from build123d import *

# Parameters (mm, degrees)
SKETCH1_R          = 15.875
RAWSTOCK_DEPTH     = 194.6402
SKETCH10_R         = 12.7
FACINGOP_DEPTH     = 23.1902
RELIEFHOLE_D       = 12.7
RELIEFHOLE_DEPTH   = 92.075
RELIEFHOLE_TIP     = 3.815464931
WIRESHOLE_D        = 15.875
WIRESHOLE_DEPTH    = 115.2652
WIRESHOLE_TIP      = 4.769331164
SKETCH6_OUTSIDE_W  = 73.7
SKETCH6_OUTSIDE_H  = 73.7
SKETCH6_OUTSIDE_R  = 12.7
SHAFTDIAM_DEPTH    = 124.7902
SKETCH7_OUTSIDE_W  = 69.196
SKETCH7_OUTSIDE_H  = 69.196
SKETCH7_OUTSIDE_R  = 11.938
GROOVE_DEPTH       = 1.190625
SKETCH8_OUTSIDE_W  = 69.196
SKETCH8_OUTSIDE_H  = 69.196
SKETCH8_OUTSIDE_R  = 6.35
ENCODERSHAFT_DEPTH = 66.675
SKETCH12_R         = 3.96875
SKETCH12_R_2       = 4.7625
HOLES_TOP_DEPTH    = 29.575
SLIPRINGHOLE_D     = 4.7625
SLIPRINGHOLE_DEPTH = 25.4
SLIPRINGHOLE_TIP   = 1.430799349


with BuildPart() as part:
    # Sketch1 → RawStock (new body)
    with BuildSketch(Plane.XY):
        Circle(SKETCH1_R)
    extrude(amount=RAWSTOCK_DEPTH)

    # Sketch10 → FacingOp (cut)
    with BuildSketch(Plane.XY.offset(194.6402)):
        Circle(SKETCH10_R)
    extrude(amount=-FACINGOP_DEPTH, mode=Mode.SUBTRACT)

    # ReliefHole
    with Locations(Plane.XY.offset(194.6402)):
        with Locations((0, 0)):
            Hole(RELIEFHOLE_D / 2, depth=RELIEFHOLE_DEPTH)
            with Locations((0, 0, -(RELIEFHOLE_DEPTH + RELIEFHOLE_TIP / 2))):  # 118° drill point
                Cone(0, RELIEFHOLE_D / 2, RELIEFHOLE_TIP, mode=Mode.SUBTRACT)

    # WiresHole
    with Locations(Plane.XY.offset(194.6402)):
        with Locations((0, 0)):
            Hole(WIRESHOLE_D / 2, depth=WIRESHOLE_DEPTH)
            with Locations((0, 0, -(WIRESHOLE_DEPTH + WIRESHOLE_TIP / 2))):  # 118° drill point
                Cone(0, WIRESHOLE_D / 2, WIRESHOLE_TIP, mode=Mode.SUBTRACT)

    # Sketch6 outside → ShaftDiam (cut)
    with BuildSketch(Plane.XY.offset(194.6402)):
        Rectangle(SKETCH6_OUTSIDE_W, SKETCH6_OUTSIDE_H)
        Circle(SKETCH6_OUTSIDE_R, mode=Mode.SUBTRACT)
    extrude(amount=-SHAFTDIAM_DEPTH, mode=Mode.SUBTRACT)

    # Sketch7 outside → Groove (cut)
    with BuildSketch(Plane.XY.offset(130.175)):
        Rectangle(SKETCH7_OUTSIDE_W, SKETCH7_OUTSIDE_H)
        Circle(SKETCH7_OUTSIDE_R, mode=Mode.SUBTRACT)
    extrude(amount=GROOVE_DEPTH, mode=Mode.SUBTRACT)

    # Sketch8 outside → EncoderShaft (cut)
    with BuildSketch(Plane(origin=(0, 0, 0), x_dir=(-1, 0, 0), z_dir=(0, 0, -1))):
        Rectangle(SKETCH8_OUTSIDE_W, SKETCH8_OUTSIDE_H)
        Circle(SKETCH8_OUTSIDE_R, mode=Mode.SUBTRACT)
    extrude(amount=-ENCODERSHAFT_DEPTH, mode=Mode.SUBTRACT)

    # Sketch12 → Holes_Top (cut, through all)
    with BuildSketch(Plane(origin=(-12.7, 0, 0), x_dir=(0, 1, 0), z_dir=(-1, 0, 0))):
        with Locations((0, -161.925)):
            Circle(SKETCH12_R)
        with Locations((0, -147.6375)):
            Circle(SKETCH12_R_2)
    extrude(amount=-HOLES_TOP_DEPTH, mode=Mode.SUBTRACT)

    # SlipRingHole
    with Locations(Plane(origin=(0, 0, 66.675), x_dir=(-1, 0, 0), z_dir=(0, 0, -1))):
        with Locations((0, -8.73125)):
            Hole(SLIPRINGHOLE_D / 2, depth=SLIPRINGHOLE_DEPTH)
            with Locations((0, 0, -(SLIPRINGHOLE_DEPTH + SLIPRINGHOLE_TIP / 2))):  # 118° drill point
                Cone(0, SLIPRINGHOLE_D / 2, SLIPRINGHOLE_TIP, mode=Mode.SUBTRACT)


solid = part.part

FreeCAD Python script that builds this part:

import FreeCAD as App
import Part
import Sketcher
Q = App.Units.Quantity


def add_polygon(sketch, points):
    """Adds a closed chain of lines whose ends are joined by coincident constraints."""
    first, n = sketch.GeometryCount, len(points)
    for a, b in zip(points, points[1:] + points[:1]):
        sketch.addGeometry(Part.LineSegment(App.Vector(*a, 0), App.Vector(*b, 0)), False)
    for i in range(n):
        sketch.addConstraint(Sketcher.Constraint("Coincident", first + i, 2, first + (i + 1) % n, 1))

doc = App.newDocument("Part")
body = doc.addObject("PartDesign::Body", "Body")

# Sketch on XY plane
sketch1 = body.newObject("Sketcher::SketchObject", "Sketch")
sketch1.AttachmentSupport = (doc.getObject("XY_Plane"), [""])
sketch1.MapMode = "FlatFace"
sketch1.addGeometry(Part.Circle(App.Vector(0, 0, 0), App.Vector(0, 0, 1), 16), False)
sketch1.addConstraint(Sketcher.Constraint("Coincident", 0, 3, -1, 1))
sketch1.addConstraint(Sketcher.Constraint("Diameter", 0, Q("1.25 in")))
pad1 = body.newObject("PartDesign::Pad", "Pad")
pad1.Profile = sketch1
pad1.Length = Q("7.663 in")

# Sketch on XY plane
sketch2 = body.newObject("Sketcher::SketchObject", "Sketch001")
sketch2.AttachmentSupport = (doc.getObject("XY_Plane"), [""])
sketch2.MapMode = "FlatFace"
sketch2.AttachmentOffset = App.Placement(App.Vector(0, 0, 7.663 * 25.4), App.Rotation())
sketch2.addGeometry(Part.Circle(App.Vector(0, 0, 0), App.Vector(0, 0, 1), 13), False)
sketch2.addConstraint(Sketcher.Constraint("Coincident", 0, 3, -1, 1))
sketch2.addConstraint(Sketcher.Constraint("Diameter", 0, Q("1 in")))
pocket1 = body.newObject("PartDesign::Pocket", "Pocket")
pocket1.Profile = sketch2
pocket1.Length = Q("0.913 in")

# Sketch on XY plane
sketch3 = body.newObject("Sketcher::SketchObject", "Sketch002")
sketch3.AttachmentSupport = (doc.getObject("XY_Plane"), [""])
sketch3.MapMode = "FlatFace"
sketch3.AttachmentOffset = App.Placement(App.Vector(0, 0, 7.663 * 25.4), App.Rotation())
sketch3.addGeometry(Part.Circle(App.Vector(0, 0, 0), App.Vector(0, 0, 1), 6), False)
sketch3.addConstraint(Sketcher.Constraint("Coincident", 0, 3, -1, 1))
sketch3.addConstraint(Sketcher.Constraint("Diameter", 0, Q("0.5 in")))
doc.recompute()
hole = body.newObject("PartDesign::Hole", "Hole")
hole.Profile = sketch3
hole.ThreadType = "None"
hole.Diameter = Q("0.5 in")
hole.DepthType = "Dimension"
hole.Depth = Q("3.625 in")
hole.DrillPoint = "Angled"
hole.DrillPointAngle = 118

# Sketch on XY plane
sketch4 = body.newObject("Sketcher::SketchObject", "Sketch003")
sketch4.AttachmentSupport = (doc.getObject("XY_Plane"), [""])
sketch4.MapMode = "FlatFace"
sketch4.AttachmentOffset = App.Placement(App.Vector(0, 0, 7.663 * 25.4), App.Rotation())
sketch4.addGeometry(Part.Circle(App.Vector(0, 0, 0), App.Vector(0, 0, 1), 8), False)
sketch4.addConstraint(Sketcher.Constraint("Coincident", 0, 3, -1, 1))
sketch4.addConstraint(Sketcher.Constraint("Diameter", 0, Q("0.625 in")))
doc.recompute()
hole2 = body.newObject("PartDesign::Hole", "Hole001")
hole2.Profile = sketch4
hole2.ThreadType = "None"
hole2.Diameter = Q("0.625 in")
hole2.DepthType = "Dimension"
hole2.Depth = Q("4.538 in")
hole2.DrillPoint = "Angled"
hole2.DrillPointAngle = 118

# Sketch on XY plane
sketch5 = body.newObject("Sketcher::SketchObject", "Sketch004")
sketch5.AttachmentSupport = (doc.getObject("XY_Plane"), [""])
sketch5.MapMode = "FlatFace"
sketch5.AttachmentOffset = App.Placement(App.Vector(0, 0, 7.663 * 25.4), App.Rotation())
add_polygon(sketch5, [(-37, 37), (-37, -37), (37, -37), (37, 37)])  # lines 0-3
sketch5.addGeometry(Part.Circle(App.Vector(0, 0, 0), App.Vector(0, 0, 1), 13), False)  # 4
sketch5.addConstraint(Sketcher.Constraint("Vertical", 0))
sketch5.addConstraint(Sketcher.Constraint("Horizontal", 1))
sketch5.addConstraint(Sketcher.Constraint("Vertical", 2))
sketch5.addConstraint(Sketcher.Constraint("Horizontal", 3))
sketch5.addConstraint(Sketcher.Constraint("Coincident", 4, 3, -1, 1))
sketch5.addConstraint(Sketcher.Constraint("Symmetric", 0, 2, 2, 2, -1, 1))
sketch5.addConstraint(Sketcher.Constraint("Equal", 3, 0))
sketch5.addConstraint(Sketcher.Constraint("Diameter", 4, Q("1 in")))
sketch5.addConstraint(Sketcher.Constraint("DistanceX", 1, 1, 1, 2, Q("73.7 mm")))
pocket2 = body.newObject("PartDesign::Pocket", "Pocket001")
pocket2.Profile = sketch5
pocket2.Length = Q("4.913 in")

# Sketch on XY plane
sketch6 = body.newObject("Sketcher::SketchObject", "Sketch005")
sketch6.AttachmentSupport = (doc.getObject("XY_Plane"), [""])
sketch6.MapMode = "FlatFace"
sketch6.AttachmentOffset = App.Placement(App.Vector(0, 0, 5.125 * 25.4), App.Rotation())
add_polygon(sketch6, [(-35, 35), (-35, -35), (35, -35), (35, 35)])  # lines 0-3
sketch6.addGeometry(Part.Circle(App.Vector(0, 0, 0), App.Vector(0, 0, 1), 12), False)  # 4
sketch6.addConstraint(Sketcher.Constraint("Vertical", 0))
sketch6.addConstraint(Sketcher.Constraint("Horizontal", 1))
sketch6.addConstraint(Sketcher.Constraint("Vertical", 2))
sketch6.addConstraint(Sketcher.Constraint("Horizontal", 3))
sketch6.addConstraint(Sketcher.Constraint("Coincident", 4, 3, -1, 1))
sketch6.addConstraint(Sketcher.Constraint("Symmetric", 0, 2, 2, 2, -1, 1))
sketch6.addConstraint(Sketcher.Constraint("Equal", 3, 0))
sketch6.addConstraint(Sketcher.Constraint("Diameter", 4, Q("0.94 in")))
sketch6.addConstraint(Sketcher.Constraint("DistanceX", 1, 1, 1, 2, Q("69.196 mm")))
pocket3 = body.newObject("PartDesign::Pocket", "Pocket002")
pocket3.Profile = sketch6
pocket3.Length = Q("0.046875 in")
pocket3.Reversed = True

# Sketch on XY plane
sketch7 = body.newObject("Sketcher::SketchObject", "Sketch006")
sketch7.AttachmentSupport = (doc.getObject("XY_Plane"), [""])
sketch7.MapMode = "FlatFace"
add_polygon(sketch7, [(35, 35), (35, -35), (-35, -35), (-35, 35)])  # lines 0-3
sketch7.addGeometry(Part.Circle(App.Vector(0, 0, 0), App.Vector(0, 0, 1), 6), False)  # 4
sketch7.addConstraint(Sketcher.Constraint("Vertical", 0))
sketch7.addConstraint(Sketcher.Constraint("Horizontal", 1))
sketch7.addConstraint(Sketcher.Constraint("Vertical", 2))
sketch7.addConstraint(Sketcher.Constraint("Horizontal", 3))
sketch7.addConstraint(Sketcher.Constraint("Coincident", 4, 3, -1, 1))
sketch7.addConstraint(Sketcher.Constraint("Symmetric", 0, 2, 2, 2, -1, 1))
sketch7.addConstraint(Sketcher.Constraint("Equal", 3, 0))
sketch7.addConstraint(Sketcher.Constraint("Diameter", 4, Q("0.5 in")))
sketch7.addConstraint(Sketcher.Constraint("DistanceX", 1, 2, 1, 1, Q("69.196 mm")))
pocket4 = body.newObject("PartDesign::Pocket", "Pocket003")
pocket4.Profile = sketch7
pocket4.Length = Q("2.625 in")
pocket4.Reversed = True

# Sketch on YZ plane
sketch8 = body.newObject("Sketcher::SketchObject", "Sketch007")
sketch8.AttachmentSupport = (doc.getObject("YZ_Plane"), [""])
sketch8.MapMode = "FlatFace"
sketch8.AttachmentOffset = App.Placement(App.Vector(0, 0, -0.5 * 25.4), App.Rotation())
sketch8.addGeometry(Part.Circle(App.Vector(0, 161.9, 0), App.Vector(0, 0, 1), 4), False)
sketch8.addGeometry(Part.Circle(App.Vector(0, 147.6, 0), App.Vector(0, 0, 1), 4.8), False)
sketch8.addConstraint(Sketcher.Constraint("PointOnObject", 0, 3, -2))
sketch8.addConstraint(Sketcher.Constraint("PointOnObject", 1, 3, -2))
sketch8.addConstraint(Sketcher.Constraint("Diameter", 0, Q("0.3125 in")))
sketch8.addConstraint(Sketcher.Constraint("Diameter", 1, Q("0.375 in")))
sketch8.addConstraint(Sketcher.Constraint("DistanceY", -1, 1, 0, 3, Q("6.375 in")))
sketch8.addConstraint(Sketcher.Constraint("DistanceY", -1, 1, 1, 3, Q("5.8125 in")))
pocket5 = body.newObject("PartDesign::Pocket", "Pocket004")
pocket5.Profile = sketch8
pocket5.Type = "ThroughAll"
pocket5.Reversed = True

# Sketch on XY plane
sketch9 = body.newObject("Sketcher::SketchObject", "Sketch008")
sketch9.AttachmentSupport = (doc.getObject("XY_Plane"), [""])
sketch9.MapMode = "FlatFace"
sketch9.AttachmentOffset = App.Placement(App.Vector(0, 0, 2.625 * 25.4), App.Rotation())
sketch9.addGeometry(Part.Circle(App.Vector(0, -8.7, 0), App.Vector(0, 0, 1), 2.4), False)
sketch9.addConstraint(Sketcher.Constraint("PointOnObject", 0, 3, -2))
sketch9.addConstraint(Sketcher.Constraint("Diameter", 0, Q("0.1875 in")))
sketch9.addConstraint(Sketcher.Constraint("DistanceY", 0, 3, -1, 1, Q("0.34375 in")))
doc.recompute()
hole3 = body.newObject("PartDesign::Hole", "Hole002")
hole3.Profile = sketch9
hole3.ThreadType = "None"
hole3.Diameter = Q("0.1875 in")
hole3.DepthType = "Dimension"
hole3.Depth = Q("1 in")
hole3.DrillPoint = "Angled"
hole3.DrillPointAngle = 118
hole3.Reversed = True

doc.recompute()
